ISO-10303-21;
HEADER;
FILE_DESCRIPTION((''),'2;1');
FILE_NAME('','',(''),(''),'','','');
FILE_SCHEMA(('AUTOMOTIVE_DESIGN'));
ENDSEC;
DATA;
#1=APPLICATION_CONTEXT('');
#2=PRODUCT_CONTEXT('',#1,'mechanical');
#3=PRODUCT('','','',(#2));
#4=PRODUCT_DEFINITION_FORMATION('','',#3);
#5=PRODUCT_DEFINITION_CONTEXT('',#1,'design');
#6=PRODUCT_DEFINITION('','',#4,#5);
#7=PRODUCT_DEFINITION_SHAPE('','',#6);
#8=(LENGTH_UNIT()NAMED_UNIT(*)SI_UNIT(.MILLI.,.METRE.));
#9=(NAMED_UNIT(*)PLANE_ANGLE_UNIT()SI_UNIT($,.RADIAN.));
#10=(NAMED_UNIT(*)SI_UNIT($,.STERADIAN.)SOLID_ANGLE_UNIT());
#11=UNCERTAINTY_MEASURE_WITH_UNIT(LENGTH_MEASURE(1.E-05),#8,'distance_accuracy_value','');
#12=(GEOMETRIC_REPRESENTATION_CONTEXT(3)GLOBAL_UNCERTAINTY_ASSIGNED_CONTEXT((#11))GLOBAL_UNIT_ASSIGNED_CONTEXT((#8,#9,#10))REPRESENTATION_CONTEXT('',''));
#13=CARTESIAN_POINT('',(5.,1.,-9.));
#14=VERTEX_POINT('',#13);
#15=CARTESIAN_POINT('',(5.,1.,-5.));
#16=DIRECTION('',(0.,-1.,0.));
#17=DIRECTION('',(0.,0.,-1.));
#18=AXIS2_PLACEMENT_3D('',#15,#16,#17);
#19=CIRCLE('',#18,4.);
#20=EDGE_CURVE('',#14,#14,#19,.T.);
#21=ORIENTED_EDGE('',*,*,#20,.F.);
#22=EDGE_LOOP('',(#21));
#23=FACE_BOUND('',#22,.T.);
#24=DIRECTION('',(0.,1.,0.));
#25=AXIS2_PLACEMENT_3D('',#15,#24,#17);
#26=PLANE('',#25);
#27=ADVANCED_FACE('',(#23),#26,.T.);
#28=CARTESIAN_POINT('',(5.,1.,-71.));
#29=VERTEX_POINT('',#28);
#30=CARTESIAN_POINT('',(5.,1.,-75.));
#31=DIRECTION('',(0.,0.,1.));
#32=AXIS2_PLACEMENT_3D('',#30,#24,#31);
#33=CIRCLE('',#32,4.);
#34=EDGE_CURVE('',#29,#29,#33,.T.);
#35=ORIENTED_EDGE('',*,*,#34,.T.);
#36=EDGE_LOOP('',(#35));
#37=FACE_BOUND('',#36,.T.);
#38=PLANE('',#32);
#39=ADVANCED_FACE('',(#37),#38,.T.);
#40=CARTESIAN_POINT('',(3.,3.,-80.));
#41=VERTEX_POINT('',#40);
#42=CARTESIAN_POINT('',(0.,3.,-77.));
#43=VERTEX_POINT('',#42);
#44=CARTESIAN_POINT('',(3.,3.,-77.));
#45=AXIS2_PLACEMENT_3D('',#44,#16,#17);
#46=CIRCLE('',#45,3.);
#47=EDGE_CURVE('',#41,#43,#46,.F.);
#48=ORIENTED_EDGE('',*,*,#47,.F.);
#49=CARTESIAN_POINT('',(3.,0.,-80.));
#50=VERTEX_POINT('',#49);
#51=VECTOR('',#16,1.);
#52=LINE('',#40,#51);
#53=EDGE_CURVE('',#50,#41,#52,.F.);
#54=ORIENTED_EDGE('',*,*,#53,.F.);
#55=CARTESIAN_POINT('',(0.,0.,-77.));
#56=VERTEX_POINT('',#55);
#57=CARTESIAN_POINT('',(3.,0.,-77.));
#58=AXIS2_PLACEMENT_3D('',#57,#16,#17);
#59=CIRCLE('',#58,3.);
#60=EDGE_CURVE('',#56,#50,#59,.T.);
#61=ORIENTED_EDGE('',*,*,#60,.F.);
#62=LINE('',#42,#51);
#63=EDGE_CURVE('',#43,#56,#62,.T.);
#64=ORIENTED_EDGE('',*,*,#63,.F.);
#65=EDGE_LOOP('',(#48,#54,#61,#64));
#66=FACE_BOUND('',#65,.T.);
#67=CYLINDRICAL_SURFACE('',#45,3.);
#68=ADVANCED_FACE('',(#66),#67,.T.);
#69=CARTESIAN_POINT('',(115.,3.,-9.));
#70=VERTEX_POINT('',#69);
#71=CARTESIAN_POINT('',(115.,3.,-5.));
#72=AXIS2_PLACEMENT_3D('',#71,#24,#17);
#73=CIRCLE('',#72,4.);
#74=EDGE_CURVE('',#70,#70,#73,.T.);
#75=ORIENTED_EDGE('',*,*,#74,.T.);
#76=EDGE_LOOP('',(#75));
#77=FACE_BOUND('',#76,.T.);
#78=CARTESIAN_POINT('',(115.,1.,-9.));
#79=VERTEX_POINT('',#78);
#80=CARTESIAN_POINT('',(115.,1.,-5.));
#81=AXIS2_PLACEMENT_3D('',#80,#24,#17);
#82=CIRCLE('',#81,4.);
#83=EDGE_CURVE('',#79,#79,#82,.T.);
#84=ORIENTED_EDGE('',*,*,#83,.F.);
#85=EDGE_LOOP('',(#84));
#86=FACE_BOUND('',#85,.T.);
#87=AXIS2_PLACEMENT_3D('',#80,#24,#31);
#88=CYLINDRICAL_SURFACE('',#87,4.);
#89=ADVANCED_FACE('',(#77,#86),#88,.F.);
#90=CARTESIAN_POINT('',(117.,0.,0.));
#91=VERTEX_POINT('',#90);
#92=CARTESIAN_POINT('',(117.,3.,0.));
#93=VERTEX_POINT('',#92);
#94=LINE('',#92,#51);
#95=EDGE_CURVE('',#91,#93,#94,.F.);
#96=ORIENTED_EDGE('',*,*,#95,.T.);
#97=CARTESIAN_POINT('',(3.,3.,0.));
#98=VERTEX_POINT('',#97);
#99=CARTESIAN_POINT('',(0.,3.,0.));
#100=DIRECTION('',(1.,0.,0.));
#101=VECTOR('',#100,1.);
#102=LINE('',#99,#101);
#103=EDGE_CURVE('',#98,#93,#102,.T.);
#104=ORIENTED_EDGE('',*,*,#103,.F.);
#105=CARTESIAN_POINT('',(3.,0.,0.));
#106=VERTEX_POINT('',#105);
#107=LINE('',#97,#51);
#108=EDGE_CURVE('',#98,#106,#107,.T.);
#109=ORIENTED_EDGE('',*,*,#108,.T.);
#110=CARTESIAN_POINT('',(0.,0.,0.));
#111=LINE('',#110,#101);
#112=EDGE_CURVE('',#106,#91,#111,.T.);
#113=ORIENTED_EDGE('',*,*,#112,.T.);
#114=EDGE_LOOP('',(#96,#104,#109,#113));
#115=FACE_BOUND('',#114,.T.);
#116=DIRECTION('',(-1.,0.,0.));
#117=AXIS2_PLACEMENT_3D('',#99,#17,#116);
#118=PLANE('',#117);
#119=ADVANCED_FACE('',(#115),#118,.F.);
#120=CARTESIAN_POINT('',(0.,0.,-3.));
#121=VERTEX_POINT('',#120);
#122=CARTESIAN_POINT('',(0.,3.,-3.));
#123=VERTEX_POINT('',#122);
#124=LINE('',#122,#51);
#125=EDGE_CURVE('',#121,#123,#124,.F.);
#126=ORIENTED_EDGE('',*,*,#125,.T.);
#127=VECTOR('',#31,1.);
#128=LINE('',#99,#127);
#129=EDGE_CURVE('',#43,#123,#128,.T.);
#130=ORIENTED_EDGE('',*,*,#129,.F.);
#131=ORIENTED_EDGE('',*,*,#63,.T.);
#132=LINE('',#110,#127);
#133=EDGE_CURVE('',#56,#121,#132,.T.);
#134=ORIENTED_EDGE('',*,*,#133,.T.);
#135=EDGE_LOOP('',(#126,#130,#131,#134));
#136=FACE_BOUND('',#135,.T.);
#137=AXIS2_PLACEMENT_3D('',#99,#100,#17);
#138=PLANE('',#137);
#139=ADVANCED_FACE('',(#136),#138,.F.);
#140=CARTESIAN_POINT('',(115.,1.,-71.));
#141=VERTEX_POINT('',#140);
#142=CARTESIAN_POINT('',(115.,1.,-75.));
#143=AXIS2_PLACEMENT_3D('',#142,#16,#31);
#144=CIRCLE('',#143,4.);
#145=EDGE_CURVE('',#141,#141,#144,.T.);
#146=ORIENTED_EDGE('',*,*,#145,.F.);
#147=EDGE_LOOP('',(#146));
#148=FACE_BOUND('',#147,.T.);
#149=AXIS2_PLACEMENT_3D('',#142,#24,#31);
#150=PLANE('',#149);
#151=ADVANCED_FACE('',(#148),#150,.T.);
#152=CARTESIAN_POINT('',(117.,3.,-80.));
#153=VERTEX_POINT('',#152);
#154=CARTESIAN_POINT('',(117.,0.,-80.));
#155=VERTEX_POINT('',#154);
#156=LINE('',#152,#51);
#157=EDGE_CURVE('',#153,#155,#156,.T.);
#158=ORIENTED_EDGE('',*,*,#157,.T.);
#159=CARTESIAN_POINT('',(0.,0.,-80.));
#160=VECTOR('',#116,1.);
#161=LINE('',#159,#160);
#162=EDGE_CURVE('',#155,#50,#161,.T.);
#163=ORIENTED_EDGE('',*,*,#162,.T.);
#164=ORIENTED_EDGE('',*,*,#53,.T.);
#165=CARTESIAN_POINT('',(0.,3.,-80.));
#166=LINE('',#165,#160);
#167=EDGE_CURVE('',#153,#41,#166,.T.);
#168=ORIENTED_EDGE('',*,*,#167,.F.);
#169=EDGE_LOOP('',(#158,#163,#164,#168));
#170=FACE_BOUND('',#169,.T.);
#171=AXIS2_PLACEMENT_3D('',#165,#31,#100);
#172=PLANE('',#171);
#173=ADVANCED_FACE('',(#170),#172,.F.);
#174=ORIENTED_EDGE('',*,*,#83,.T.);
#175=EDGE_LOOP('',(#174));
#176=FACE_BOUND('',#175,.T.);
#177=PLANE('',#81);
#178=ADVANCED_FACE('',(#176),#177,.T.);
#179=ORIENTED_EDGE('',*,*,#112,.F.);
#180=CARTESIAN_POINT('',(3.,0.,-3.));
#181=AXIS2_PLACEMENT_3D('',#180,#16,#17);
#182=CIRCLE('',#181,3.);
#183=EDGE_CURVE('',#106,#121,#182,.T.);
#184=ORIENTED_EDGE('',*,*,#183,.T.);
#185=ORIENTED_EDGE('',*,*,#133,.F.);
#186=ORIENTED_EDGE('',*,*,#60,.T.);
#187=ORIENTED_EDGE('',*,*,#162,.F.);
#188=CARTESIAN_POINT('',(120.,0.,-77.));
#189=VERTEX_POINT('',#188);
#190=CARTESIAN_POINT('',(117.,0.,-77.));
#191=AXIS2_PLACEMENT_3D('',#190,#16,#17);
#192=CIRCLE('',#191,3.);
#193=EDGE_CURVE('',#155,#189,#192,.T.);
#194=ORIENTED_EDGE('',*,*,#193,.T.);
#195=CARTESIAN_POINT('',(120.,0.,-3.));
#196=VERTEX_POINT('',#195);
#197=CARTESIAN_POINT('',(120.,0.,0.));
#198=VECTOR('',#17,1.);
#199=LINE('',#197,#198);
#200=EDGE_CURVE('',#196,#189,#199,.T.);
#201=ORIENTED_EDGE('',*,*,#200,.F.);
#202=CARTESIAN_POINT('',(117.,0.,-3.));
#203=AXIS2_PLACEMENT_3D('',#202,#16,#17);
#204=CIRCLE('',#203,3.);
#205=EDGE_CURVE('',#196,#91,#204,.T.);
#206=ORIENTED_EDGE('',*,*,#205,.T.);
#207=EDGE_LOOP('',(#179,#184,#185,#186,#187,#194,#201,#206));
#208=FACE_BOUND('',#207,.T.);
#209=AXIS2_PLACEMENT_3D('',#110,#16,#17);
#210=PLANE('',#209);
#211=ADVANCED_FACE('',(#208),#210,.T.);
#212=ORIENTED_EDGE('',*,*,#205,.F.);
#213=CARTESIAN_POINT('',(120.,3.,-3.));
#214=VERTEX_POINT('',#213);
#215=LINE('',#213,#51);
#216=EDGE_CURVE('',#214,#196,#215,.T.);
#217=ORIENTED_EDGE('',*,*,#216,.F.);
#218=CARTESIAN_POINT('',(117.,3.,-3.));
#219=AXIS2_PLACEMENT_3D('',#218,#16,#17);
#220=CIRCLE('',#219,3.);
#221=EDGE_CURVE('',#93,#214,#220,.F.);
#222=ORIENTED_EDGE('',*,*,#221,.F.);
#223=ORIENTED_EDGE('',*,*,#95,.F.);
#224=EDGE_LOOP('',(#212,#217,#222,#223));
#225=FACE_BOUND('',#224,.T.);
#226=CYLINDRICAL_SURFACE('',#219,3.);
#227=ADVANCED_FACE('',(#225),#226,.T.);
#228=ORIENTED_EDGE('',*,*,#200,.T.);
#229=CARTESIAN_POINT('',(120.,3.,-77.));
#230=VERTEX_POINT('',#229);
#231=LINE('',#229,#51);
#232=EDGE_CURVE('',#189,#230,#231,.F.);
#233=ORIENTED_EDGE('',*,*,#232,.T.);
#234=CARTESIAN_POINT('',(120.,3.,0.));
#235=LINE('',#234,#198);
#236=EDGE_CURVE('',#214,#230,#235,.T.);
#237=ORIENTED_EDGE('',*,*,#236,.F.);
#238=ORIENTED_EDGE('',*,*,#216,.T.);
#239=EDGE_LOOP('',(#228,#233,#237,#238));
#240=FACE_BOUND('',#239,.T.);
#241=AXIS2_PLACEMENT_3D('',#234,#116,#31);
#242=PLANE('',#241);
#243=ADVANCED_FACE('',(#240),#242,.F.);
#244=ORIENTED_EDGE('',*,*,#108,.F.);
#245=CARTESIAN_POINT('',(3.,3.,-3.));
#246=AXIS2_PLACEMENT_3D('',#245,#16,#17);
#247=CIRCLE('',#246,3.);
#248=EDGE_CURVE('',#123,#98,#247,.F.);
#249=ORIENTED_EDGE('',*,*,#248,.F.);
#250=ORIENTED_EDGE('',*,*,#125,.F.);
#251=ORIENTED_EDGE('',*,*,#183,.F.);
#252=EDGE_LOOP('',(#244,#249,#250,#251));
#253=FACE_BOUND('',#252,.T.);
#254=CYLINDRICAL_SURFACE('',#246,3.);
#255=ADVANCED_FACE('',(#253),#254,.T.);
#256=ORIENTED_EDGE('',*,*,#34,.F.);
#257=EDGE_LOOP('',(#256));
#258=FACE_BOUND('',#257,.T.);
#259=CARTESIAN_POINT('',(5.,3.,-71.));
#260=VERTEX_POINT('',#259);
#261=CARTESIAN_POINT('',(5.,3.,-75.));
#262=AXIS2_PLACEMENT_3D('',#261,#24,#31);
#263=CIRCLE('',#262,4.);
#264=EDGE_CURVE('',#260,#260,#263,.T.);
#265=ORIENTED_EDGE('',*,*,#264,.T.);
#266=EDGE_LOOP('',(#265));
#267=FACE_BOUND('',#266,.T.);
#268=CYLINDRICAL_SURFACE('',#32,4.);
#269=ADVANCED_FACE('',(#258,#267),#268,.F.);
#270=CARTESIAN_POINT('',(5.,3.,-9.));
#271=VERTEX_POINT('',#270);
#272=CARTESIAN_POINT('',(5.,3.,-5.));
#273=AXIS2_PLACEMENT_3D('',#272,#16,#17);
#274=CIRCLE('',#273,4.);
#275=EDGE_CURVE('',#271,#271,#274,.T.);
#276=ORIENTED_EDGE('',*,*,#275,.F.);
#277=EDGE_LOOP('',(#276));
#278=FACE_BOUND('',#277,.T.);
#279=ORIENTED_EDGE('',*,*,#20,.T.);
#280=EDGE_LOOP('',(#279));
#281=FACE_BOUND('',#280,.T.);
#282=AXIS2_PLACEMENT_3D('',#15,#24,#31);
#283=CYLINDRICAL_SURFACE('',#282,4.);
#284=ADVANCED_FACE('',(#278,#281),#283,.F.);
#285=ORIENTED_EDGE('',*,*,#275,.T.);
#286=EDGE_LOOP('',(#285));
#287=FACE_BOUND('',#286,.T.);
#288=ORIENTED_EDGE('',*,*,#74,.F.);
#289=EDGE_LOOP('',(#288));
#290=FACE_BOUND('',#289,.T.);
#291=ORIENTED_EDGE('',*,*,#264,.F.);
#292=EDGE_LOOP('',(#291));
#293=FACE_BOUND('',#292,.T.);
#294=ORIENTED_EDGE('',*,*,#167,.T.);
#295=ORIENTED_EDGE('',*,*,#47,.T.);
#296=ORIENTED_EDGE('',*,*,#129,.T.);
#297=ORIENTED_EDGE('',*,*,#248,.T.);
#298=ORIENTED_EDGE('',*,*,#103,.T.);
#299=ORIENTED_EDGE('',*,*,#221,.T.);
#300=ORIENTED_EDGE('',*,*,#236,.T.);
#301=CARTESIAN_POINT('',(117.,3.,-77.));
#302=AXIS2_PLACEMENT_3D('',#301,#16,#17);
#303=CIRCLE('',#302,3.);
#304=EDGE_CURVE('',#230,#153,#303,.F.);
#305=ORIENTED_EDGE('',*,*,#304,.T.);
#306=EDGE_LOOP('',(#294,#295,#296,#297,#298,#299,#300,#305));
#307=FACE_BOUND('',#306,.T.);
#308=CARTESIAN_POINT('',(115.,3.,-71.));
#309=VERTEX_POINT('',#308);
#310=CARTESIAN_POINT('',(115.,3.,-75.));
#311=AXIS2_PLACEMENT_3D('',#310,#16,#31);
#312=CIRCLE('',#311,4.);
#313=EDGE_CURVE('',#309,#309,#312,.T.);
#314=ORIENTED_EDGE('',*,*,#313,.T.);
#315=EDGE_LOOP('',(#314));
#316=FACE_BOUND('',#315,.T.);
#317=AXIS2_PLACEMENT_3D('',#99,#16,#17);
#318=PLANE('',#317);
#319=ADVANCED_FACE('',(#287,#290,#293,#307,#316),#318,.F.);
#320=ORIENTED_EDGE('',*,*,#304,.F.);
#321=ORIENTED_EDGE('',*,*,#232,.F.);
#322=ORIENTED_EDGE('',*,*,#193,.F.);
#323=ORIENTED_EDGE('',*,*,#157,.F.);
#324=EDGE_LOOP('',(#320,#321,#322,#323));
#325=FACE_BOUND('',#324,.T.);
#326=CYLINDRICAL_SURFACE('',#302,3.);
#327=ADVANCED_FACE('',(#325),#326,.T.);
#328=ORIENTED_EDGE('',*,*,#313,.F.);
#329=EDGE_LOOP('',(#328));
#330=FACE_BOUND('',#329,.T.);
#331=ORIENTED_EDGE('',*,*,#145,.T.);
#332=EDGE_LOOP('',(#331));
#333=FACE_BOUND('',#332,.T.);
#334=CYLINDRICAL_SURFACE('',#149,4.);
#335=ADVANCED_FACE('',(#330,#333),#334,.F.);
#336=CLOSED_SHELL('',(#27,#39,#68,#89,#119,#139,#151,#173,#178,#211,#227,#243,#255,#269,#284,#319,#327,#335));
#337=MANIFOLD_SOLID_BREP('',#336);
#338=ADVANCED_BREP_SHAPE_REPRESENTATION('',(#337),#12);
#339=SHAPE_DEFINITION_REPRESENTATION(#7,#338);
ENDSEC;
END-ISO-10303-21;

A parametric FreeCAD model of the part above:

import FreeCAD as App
import Part
import Sketcher
from FreeCAD import Vector
Q = App.Units.Quantity


def edges_at(feature, points):
    """Names of the edges that pass closest to the given points."""
    edges = feature.Shape.Edges
    near = lambda p: min(range(len(edges)), key=lambda i: edges[i].distToShape(Part.Vertex(*p))[0])
    return sorted({f"Edge{near(p) + 1}" for p in points})


def add_polygon(sketch, points):
    """Adds a closed chain of lines whose ends are joined by coincident constraints."""
    first, n = sketch.GeometryCount, len(points)
    for a, b in zip(points, points[1:] + points[:1]):
        sketch.addGeometry(Part.LineSegment(App.Vector(*a, 0), App.Vector(*b, 0)), False)
    for i in range(n):
        sketch.addConstraint(Sketcher.Constraint("Coincident", first + i, 2, first + (i + 1) % n, 1))

doc = App.newDocument("Part")
params = doc.addObject("Spreadsheet::Sheet", "Params")
for row, (alias, value) in enumerate([
    ("sketch1_width", "120 mm"),
    ("sketch1_height", "80 mm"),
    ("pad1_length", "3 mm"),
    ("sketch2_diameter", "8 mm"),
    ("pocket1_length", "2 mm"),
    ("sketch3_diameter", "8 mm"),
    ("pocket2_length", "2 mm"),
    ("fillet_radius", "3 mm"),
], start=1):
    params.set(f"A{row}", alias)
    params.set(f"B{row}", "=" + value)
    params.setAlias(f"B{row}", alias)

body = doc.addObject("PartDesign::Body", "Body")

# Sketch on XZ plane
sketch1 = body.newObject("Sketcher::SketchObject", "Sketch")
sketch1.AttachmentSupport = (doc.getObject("XZ_Plane"), [""])
sketch1.MapMode = "FlatFace"
add_polygon(sketch1, [(0, -80), (0, 0), (120, 0), (120, -80)])  # lines 0-3
sketch1.addConstraint([
    Sketcher.Constraint("Vertical", 0),
    Sketcher.Constraint("Horizontal", 1),
    Sketcher.Constraint("Vertical", 2),
    Sketcher.Constraint("Horizontal", 3),
    Sketcher.Constraint("Coincident", 0, 2, -1, 1),
    Sketcher.Constraint("DistanceX", 1, 1, 1, 2, Q("120 mm")),
    Sketcher.Constraint("DistanceY", 0, 1, 0, 2, Q("80 mm")),
])
sketch1.setExpression("Constraints[9]", "Params.sketch1_width")
sketch1.setExpression("Constraints[10]", "Params.sketch1_height")
pad1 = body.newObject("PartDesign::Pad", "Pad")
pad1.Profile = sketch1
pad1.setExpression("Length", "Params.pad1_length")
pad1.Reversed = True

# Sketch on XZ plane
sketch2 = body.newObject("Sketcher::SketchObject", "Sketch001")
sketch2.AttachmentSupport = (doc.getObject("XZ_Plane"), [""])
sketch2.MapMode = "FlatFace"
sketch2.AttachmentOffset = App.Placement(Vector(0, 0, -3), App.Rotation())
sketch2.addGeometry(Part.Circle(Vector(5, -75, 0), Vector(0, 0, 1), 4), False)
sketch2.addConstraint([
    Sketcher.Constraint("Diameter", 0, Q("8 mm")),
    Sketcher.Constraint("DistanceX", -1, 1, 0, 3, Q("5 mm")),
    Sketcher.Constraint("DistanceY", 0, 3, -1, 1, Q("75 mm")),
])
sketch2.setExpression("Constraints[0]", "Params.sketch2_diameter")
pocket1 = body.newObject("PartDesign::Pocket", "Pocket")
pocket1.Profile = sketch2
pocket1.setExpression("Length", "Params.pocket1_length")
pocket1.Reversed = True
doc.recompute()

datumplane = body.newObject("PartDesign::Plane", "DatumPlane")
datumplane.AttachmentSupport = (doc.getObject("XY_Plane"), [""])
datumplane.MapMode = "FlatFace"
datumplane.AttachmentOffset = App.Placement(Vector(0, 0, -40), App.Rotation())
mirrored = body.newObject("PartDesign::Mirrored", "Mirrored")
mirrored.Originals = [pocket1]
mirrored.MirrorPlane = (datumplane, [""])
body.Tip = mirrored
doc.recompute()

datumplane2 = body.newObject("PartDesign::Plane", "DatumPlane001")
datumplane2.AttachmentSupport = (doc.getObject("YZ_Plane"), [""])
datumplane2.MapMode = "FlatFace"
datumplane2.AttachmentOffset = App.Placement(Vector(0, 0, 60), App.Rotation())
mirrored2 = body.newObject("PartDesign::Mirrored", "Mirrored001")
mirrored2.Originals = [pocket1]
mirrored2.MirrorPlane = (datumplane2, [""])
body.Tip = mirrored2

# Sketch on XZ plane
sketch3 = body.newObject("Sketcher::SketchObject", "Sketch002")
sketch3.AttachmentSupport = (doc.getObject("XZ_Plane"), [""])
sketch3.MapMode = "FlatFace"
sketch3.AttachmentOffset = App.Placement(Vector(0, 0, -3), App.Rotation())
sketch3.addGeometry(Part.Circle(Vector(115, -5, 0), Vector(0, 0, 1), 4), False)
sketch3.addConstraint([
    Sketcher.Constraint("Diameter", 0, Q("8 mm")),
    Sketcher.Constraint("DistanceX", -1, 1, 0, 3, Q("115 mm")),
    Sketcher.Constraint("DistanceY", 0, 3, -1, 1, Q("5 mm")),
])
sketch3.setExpression("Constraints[0]", "Params.sketch3_diameter")
pocket2 = body.newObject("PartDesign::Pocket", "Pocket001")
pocket2.Profile = sketch3
pocket2.setExpression("Length", "Params.pocket2_length")
pocket2.Reversed = True
doc.recompute()

fillet = body.newObject("PartDesign::Fillet", "Fillet")
fillet.Base = (pocket2, edges_at(pocket2, [
    (0, 1.5, -80),
    (120, 1.5, -80),
    (120, 1.5, 0),
    (0, 1.5, 0),
]))
fillet.setExpression("Radius", "Params.fillet_radius")

doc.recompute()
